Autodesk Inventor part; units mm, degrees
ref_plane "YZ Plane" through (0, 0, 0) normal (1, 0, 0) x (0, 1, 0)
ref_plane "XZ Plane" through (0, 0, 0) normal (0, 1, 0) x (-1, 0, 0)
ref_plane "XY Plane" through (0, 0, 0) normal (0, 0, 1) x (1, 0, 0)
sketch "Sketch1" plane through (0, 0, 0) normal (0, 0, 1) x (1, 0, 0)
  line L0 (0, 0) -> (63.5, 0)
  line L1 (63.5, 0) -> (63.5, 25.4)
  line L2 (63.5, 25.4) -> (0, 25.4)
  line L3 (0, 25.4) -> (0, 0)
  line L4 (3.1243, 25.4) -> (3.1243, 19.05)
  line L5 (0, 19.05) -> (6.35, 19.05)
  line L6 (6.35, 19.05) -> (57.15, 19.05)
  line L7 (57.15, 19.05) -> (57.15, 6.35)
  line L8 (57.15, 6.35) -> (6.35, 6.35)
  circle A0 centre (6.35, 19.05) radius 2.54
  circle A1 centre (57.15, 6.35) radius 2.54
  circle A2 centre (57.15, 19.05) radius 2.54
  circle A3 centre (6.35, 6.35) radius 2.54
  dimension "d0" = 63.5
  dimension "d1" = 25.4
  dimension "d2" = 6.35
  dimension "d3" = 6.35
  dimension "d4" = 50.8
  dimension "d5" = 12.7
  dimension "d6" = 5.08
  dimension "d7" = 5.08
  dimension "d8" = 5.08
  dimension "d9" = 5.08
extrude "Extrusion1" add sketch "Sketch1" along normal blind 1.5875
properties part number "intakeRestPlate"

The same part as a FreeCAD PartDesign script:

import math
import FreeCAD as App
import Part
import Sketcher

V = App.Vector
Q = App.Units.Quantity

doc = App.newDocument("Part")
body = doc.addObject("PartDesign::Body", "Body")

# Sketch on XY plane
sketch1 = body.newObject("Sketcher::SketchObject", "Sketch")
sketch1.AttachmentSupport = (doc.getObject("XY_Plane"), [""])
sketch1.MapMode = "FlatFace"
sketch1.addGeometry([
    Part.LineSegment(V(0, 0, 0), V(63.5, 0, 0)),  # 0
    Part.LineSegment(V(63.5, 0, 0), V(63.5, 25.4, 0)),  # 1
    Part.LineSegment(V(63.5, 25.4, 0), V(0, 25.4, 0)),  # 2
    Part.LineSegment(V(0, 25.4, 0), V(0, 0, 0)),  # 3
    Part.Circle(V(6.3, 6.3, 0), V(0, 0, 1), 2.5),  # 4
    Part.ArcOfCircle(Part.Circle(V(57.1, 6.3, 0), V(0, 0, 1), 2.5), math.radians(90), math.radians(180)),  # 5
    Part.ArcOfCircle(Part.Circle(V(57.1, 6.3, 0), V(0, 0, 1), 2.5), math.radians(180), math.radians(450)),  # 6
    Part.ArcOfCircle(Part.Circle(V(6.3, 19.1, 0), V(0, 0, 1), 2.5), math.radians(180), math.radians(360)),  # 7
    Part.ArcOfCircle(Part.Circle(V(6.3, 19.1, 0), V(0, 0, 1), 2.5), math.radians(0), math.radians(180)),  # 8
    Part.ArcOfCircle(Part.Circle(V(57.1, 19.1, 0), V(0, 0, 1), 2.5), math.radians(180), math.radians(270)),  # 9
    Part.ArcOfCircle(Part.Circle(V(57.1, 19.1, 0), V(0, 0, 1), 2.5), math.radians(-90), math.radians(180)),  # 10
], False)
sketch1.addConstraint([
    Sketcher.Constraint("Coincident", 0, 2, 1, 1),
    Sketcher.Constraint("Coincident", 1, 2, 2, 1),
    Sketcher.Constraint("Coincident", 2, 2, 3, 1),
    Sketcher.Constraint("Coincident", 3, 2, 0, 1),
    Sketcher.Constraint("Tangent", 5, 1, 6, 2),
    Sketcher.Constraint("Coincident", 6, 1, 5, 2),
    Sketcher.Constraint("Tangent", 7, 1, 8, 2),
    Sketcher.Constraint("Coincident", 8, 1, 7, 2),
    Sketcher.Constraint("Tangent", 9, 1, 10, 2),
    Sketcher.Constraint("Coincident", 10, 1, 9, 2),
    Sketcher.Constraint("Horizontal", 0),
    Sketcher.Constraint("Vertical", 1),
    Sketcher.Constraint("Horizontal", 2),
    Sketcher.Constraint("Vertical", 3),
    Sketcher.Constraint("Coincident", 3, 2, -1, 1),
    Sketcher.Constraint("Equal", 4, 5),
    Sketcher.Constraint("Equal", 6, 7),
    Sketcher.Constraint("Equal", 8, 9),
    Sketcher.Constraint("Horizontal", 4, 3, 5, 3),
    Sketcher.Constraint("Horizontal", 8, 3, 9, 3),
    Sketcher.Constraint("Horizontal", 5, 3, 6, 1),
    Sketcher.Constraint("Horizontal", 10, 3, 7, 1),
    Sketcher.Constraint("Horizontal", 7, 1, 8, 1),
    Sketcher.Constraint("Horizontal", 8, 1, 9, 1),
    Sketcher.Constraint("Vertical", 4, 3, 7, 3),
    Sketcher.Constraint("Vertical", 6, 3, 9, 3),
    Sketcher.Constraint("Vertical", 10, 3, 5, 1),
    Sketcher.Constraint("Vertical", 5, 1, 10, 1),
    Sketcher.Constraint("Diameter", 4, Q("0.2 in")),
    Sketcher.Constraint("DistanceY", 1, 1, 1, 2, Q("1 in")),
    Sketcher.Constraint("DistanceX", 0, 1, 0, 2, Q("2.5 in")),
    Sketcher.Constraint("DistanceX", 4, 3, 5, 3, Q("2 in")),
    Sketcher.Constraint("DistanceY", 4, 3, 7, 3, Q("0.5 in")),
    Sketcher.Constraint("DistanceX", -1, 1, 4, 3, Q("0.25 in")),
    Sketcher.Constraint("DistanceY", -1, 1, 4, 3, Q("0.25 in")),
])
pad1 = body.newObject("PartDesign::Pad", "Pad")
pad1.Profile = sketch1
pad1.Length = Q("0.0625 in")

doc.recompute()
